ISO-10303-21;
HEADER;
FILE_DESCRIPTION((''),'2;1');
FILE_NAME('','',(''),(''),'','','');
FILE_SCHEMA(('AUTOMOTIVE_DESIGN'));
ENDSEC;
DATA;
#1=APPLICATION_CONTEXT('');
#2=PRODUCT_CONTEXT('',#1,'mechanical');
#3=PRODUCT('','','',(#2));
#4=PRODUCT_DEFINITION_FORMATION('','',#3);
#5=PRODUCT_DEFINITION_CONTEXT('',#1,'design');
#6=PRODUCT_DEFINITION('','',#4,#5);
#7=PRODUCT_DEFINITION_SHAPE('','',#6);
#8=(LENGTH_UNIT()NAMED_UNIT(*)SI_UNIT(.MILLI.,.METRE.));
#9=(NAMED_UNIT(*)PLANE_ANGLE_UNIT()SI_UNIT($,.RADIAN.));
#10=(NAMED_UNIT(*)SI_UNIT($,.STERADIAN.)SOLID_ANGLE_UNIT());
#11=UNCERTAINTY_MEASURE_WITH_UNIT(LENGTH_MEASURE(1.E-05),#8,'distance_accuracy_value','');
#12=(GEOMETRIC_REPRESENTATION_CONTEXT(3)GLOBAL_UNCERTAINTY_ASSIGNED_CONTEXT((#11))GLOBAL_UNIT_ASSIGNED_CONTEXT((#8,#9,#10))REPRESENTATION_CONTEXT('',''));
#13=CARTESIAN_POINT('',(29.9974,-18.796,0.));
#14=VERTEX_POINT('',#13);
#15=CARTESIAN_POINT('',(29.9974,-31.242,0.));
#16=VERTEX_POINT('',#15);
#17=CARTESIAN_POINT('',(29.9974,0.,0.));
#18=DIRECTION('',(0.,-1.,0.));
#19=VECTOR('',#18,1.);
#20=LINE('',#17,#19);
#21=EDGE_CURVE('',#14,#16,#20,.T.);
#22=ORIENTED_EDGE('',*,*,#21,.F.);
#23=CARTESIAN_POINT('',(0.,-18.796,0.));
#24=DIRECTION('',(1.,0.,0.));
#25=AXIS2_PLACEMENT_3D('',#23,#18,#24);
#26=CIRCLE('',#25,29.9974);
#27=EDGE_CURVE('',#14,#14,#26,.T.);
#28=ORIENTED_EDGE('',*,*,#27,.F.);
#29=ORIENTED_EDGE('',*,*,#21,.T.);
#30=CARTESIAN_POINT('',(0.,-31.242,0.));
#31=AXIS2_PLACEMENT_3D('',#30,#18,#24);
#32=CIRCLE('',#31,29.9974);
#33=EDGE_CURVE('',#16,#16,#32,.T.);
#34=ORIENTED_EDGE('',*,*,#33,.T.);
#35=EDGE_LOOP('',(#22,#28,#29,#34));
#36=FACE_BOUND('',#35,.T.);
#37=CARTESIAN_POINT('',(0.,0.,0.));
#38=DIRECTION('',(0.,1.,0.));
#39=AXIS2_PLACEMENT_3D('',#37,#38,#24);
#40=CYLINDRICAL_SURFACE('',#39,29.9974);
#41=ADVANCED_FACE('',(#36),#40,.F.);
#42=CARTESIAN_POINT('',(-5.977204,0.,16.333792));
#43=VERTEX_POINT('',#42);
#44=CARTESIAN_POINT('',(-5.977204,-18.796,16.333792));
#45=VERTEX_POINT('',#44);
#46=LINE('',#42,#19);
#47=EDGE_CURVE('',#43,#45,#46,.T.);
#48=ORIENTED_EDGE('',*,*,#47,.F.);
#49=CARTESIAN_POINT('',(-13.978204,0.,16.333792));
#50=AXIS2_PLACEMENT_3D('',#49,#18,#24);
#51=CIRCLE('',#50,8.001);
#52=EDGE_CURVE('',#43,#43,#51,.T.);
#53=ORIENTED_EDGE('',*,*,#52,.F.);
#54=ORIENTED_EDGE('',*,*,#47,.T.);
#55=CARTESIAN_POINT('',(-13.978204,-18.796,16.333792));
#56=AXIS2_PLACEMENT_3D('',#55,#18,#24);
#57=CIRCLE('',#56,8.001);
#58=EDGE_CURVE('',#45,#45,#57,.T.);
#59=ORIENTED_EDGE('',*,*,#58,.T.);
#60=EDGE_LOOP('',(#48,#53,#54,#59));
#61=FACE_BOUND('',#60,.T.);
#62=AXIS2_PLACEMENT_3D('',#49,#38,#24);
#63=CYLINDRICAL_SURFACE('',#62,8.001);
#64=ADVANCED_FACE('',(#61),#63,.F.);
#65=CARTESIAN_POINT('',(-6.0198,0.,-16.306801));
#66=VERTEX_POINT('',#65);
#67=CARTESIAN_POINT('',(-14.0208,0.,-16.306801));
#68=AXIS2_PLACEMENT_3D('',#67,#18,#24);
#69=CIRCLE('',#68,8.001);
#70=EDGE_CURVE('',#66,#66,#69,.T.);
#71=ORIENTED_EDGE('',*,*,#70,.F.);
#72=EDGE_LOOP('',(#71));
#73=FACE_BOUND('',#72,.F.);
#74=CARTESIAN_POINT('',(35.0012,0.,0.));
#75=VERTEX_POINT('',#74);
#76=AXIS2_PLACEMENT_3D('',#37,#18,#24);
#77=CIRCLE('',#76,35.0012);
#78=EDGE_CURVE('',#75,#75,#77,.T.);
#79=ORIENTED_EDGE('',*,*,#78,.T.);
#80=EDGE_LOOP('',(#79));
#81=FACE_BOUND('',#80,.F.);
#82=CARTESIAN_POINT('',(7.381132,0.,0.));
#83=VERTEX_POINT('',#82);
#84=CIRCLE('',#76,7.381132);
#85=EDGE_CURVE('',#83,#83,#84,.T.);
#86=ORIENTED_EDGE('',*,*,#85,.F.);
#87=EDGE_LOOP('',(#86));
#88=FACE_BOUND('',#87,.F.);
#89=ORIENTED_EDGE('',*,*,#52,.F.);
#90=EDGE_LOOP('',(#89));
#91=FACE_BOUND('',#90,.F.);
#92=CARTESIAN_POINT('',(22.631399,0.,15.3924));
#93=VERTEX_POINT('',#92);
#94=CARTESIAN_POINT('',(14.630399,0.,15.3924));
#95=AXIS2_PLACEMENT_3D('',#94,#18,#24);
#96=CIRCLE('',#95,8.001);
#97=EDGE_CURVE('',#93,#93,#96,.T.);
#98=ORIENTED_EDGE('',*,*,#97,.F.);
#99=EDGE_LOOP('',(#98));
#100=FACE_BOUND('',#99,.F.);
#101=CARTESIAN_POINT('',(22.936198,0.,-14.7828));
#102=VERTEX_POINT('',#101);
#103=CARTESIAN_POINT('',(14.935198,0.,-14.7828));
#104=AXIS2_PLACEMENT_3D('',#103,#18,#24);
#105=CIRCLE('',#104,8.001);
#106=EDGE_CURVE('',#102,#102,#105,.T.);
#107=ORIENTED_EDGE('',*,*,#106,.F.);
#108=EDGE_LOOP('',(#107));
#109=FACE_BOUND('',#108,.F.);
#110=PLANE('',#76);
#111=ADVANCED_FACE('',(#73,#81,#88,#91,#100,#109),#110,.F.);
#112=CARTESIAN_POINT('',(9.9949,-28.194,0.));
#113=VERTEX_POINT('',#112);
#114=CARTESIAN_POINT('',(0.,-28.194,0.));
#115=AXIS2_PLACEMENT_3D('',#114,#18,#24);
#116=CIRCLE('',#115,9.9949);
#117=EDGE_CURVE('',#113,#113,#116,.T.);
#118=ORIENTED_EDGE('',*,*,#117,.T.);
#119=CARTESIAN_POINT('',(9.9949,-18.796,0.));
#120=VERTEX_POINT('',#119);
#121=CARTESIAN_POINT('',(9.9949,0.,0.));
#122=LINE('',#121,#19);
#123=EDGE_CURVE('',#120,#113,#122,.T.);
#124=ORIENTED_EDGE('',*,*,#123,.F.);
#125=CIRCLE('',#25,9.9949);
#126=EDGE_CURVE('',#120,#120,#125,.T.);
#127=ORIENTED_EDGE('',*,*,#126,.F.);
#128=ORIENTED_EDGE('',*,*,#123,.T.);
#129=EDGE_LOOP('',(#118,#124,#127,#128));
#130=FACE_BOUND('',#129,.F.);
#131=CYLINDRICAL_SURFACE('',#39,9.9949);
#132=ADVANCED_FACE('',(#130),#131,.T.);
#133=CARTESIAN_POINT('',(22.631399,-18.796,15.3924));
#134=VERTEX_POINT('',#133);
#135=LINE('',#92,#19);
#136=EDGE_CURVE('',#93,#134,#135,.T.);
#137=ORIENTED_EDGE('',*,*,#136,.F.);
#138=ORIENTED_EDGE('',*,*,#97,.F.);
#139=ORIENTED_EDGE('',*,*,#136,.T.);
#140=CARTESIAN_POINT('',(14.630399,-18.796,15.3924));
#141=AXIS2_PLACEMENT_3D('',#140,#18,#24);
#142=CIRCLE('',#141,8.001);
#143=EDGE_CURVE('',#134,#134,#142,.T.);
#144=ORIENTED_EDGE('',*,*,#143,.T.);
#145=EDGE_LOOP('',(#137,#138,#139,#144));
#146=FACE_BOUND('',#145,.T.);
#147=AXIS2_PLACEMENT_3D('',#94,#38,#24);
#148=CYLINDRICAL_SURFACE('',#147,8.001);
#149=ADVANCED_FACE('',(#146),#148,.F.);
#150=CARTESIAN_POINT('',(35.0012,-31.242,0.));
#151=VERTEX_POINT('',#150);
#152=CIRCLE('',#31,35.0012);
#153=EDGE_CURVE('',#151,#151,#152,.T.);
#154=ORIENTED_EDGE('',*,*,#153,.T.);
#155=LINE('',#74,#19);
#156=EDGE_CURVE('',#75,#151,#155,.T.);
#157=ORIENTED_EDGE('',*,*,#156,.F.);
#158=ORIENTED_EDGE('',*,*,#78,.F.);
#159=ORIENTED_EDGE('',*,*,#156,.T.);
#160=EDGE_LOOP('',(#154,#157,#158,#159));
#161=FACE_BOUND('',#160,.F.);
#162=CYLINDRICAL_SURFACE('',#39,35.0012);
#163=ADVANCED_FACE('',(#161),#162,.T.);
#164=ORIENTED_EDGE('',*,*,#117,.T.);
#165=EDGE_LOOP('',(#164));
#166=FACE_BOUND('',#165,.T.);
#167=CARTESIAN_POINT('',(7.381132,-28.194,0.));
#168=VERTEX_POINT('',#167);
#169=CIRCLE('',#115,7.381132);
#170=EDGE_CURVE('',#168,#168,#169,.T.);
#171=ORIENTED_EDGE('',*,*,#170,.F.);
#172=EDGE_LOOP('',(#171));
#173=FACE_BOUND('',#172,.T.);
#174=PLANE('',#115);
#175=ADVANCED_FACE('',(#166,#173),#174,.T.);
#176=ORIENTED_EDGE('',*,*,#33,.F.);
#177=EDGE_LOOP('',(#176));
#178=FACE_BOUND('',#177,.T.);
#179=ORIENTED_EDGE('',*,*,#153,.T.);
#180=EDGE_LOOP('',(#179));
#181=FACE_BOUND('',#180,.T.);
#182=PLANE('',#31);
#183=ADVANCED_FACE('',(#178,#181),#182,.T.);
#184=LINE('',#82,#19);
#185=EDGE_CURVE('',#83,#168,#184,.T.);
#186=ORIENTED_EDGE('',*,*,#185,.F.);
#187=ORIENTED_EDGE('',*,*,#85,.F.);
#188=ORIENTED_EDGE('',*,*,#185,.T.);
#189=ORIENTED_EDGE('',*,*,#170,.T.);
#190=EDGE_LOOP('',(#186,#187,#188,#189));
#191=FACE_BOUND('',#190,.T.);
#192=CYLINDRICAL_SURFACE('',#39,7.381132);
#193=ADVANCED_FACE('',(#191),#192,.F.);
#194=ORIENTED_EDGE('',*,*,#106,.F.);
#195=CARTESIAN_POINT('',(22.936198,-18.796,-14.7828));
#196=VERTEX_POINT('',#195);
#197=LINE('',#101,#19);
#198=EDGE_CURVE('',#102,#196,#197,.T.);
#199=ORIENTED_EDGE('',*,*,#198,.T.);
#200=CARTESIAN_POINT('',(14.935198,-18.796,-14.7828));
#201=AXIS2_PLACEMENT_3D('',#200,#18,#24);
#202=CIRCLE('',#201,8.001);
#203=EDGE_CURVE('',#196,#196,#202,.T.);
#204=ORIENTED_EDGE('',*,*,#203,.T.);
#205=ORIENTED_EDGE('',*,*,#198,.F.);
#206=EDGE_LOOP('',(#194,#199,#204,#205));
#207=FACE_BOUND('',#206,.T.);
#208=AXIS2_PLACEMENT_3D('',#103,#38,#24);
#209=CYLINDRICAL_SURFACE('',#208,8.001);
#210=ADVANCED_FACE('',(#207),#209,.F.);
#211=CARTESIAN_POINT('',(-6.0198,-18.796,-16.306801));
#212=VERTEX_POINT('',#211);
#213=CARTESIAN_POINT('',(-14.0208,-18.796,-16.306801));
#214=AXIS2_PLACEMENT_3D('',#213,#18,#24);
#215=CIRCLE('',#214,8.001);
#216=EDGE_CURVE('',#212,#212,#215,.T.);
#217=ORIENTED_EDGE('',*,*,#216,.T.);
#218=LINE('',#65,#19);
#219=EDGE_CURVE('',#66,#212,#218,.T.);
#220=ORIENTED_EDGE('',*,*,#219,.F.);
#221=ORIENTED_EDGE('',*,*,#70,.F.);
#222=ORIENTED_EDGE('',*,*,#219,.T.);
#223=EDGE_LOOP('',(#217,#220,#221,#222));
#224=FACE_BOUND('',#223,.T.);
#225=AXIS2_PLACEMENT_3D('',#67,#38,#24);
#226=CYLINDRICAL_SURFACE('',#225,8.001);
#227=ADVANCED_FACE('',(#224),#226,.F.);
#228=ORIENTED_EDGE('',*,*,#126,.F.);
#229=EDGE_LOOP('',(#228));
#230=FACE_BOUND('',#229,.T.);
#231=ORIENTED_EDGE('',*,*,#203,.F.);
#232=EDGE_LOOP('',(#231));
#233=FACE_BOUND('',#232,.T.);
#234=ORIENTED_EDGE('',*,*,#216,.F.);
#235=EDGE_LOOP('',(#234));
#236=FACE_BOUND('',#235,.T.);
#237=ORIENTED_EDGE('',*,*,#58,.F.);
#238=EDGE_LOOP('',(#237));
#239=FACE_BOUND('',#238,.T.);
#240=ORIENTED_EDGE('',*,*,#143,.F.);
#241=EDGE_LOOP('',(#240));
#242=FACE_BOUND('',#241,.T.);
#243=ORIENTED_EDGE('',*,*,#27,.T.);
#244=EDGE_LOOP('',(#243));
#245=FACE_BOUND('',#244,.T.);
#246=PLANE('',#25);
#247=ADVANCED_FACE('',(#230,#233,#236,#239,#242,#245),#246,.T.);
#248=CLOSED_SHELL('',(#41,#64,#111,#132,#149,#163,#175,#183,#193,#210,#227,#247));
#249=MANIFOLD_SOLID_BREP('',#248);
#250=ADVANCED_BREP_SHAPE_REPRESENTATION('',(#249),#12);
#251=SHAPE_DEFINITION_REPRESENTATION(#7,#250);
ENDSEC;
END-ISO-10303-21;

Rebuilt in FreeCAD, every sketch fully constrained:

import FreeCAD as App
import Part
import Sketcher
Q = App.Units.Quantity

doc = App.newDocument("Part")
body = doc.addObject("PartDesign::Body", "Body")

sketch1 = doc.addObject("Sketcher::SketchObject", "Sketch")
body.addObject(sketch1)
sketch1.AttachmentSupport = (doc.XZ_Plane, [""])
sketch1.MapMode = "FlatFace"
sketch1.addGeometry(Part.Circle(App.Vector(0, 0, 0), App.Vector(0, 0, 1), 35.0012), False)
sketch1.addGeometry(Part.Circle(App.Vector(0, 0, 0), App.Vector(0, 0, 1), 29.9974), False)
sketch1.addConstraint(Sketcher.Constraint("Coincident", 0, 3, -1, 1))
sketch1.addConstraint(Sketcher.Constraint("Coincident", 1, 3, -1, 1))
sketch1.addConstraint(Sketcher.Constraint("Diameter", 0, Q("2.756 in")))
sketch1.addConstraint(Sketcher.Constraint("Diameter", 1, Q("2.362 in")))
pad1 = doc.addObject("PartDesign::Pad", "Pad")
body.addObject(pad1)
pad1.Profile = sketch1
pad1.Length = Q("1.23 in")

sketch2 = doc.addObject("Sketcher::SketchObject", "Sketch001")
body.addObject(sketch2)
sketch2.AttachmentSupport = (doc.XZ_Plane, [""])
sketch2.MapMode = "FlatFace"
sketch2.addGeometry(Part.Circle(App.Vector(0, 0, 0), App.Vector(0, 0, 1), 29.9974), False)
sketch2.addGeometry(Part.Circle(App.Vector(-14.0208, -16.306801, 0), App.Vector(0, 0, 1), 8.001), False)
sketch2.addGeometry(Part.Circle(App.Vector(0, 0, 0), App.Vector(0, 0, 1), 9.9949), False)
sketch2.addGeometry(Part.Circle(App.Vector(14.935198, -14.7828, 0), App.Vector(0, 0, 1), 8.001), False)
sketch2.addGeometry(Part.Circle(App.Vector(-13.978204, 16.333792, 0), App.Vector(0, 0, 1), 8.001), False)
sketch2.addGeometry(Part.Circle(App.Vector(14.630399, 15.3924, 0), App.Vector(0, 0, 1), 8.001), False)
sketch2.addConstraint(Sketcher.Constraint("Coincident", 0, 3, -1, 1))
sketch2.addConstraint(Sketcher.Constraint("Coincident", 2, 3, -1, 1))
sketch2.addConstraint(Sketcher.Constraint("Equal", 1, 3))
sketch2.addConstraint(Sketcher.Constraint("Equal", 3, 4))
sketch2.addConstraint(Sketcher.Constraint("Equal", 4, 5))
sketch2.addConstraint(Sketcher.Constraint("Diameter", 1, Q("0.63 in")))
sketch2.addConstraint(Sketcher.Constraint("Diameter", 0, Q("2.362 in")))
sketch2.addConstraint(Sketcher.Constraint("Diameter", 2, Q("0.787 in")))
sketch2.addConstraint(Sketcher.Constraint("DistanceX", 1, 3, 3, 3, Q("1.1399999 in")))
sketch2.addConstraint(Sketcher.Constraint("DistanceY", 1, 3, 3, 3, Q("0.06 in")))
sketch2.addConstraint(Sketcher.Constraint("DistanceX", 1, 3, -1, 1, Q("0.552 in")))
sketch2.addConstraint(Sketcher.Constraint("DistanceY", 1, 3, -1, 1, Q("0.642 in")))
sketch2.addConstraint(Sketcher.Constraint("DistanceX", -1, 1, 5, 3, Q("0.576 in")))
sketch2.addConstraint(Sketcher.Constraint("DistanceY", -1, 1, 5, 3, Q("0.606 in")))
sketch2.addConstraint(Sketcher.Constraint("DistanceX", 4, 3, 3, 3, 28.913402))
sketch2.addConstraint(Sketcher.Constraint("DistanceY", -1, 1, 4, 3, 16.333792))
pad2 = doc.addObject("PartDesign::Pad", "Pad001")
body.addObject(pad2)
pad2.Profile = sketch2
pad2.Length = Q("0.74 in")

sketch3 = doc.addObject("Sketcher::SketchObject", "Sketch002")
body.addObject(sketch3)
sketch3.AttachmentSupport = (doc.XZ_Plane, [""])
sketch3.MapMode = "FlatFace"
sketch3.addGeometry(Part.Circle(App.Vector(0, 0, 0), App.Vector(0, 0, 1), 9.9949), False)
sketch3.addGeometry(Part.Circle(App.Vector(0, 0, 0), App.Vector(0, 0, 1), 7.381132), False)
sketch3.addConstraint(Sketcher.Constraint("Coincident", 0, 3, -1, 1))
sketch3.addConstraint(Sketcher.Constraint("Coincident", 1, 3, -1, 1))
sketch3.addConstraint(Sketcher.Constraint("Diameter", 0, Q("0.787 in")))
sketch3.addConstraint(Sketcher.Constraint("Diameter", 1, 14.762264))
pad3 = doc.addObject("PartDesign::Pad", "Pad002")
body.addObject(pad3)
pad3.Profile = sketch3
pad3.Length = Q("1.11 in")

doc.recompute()
